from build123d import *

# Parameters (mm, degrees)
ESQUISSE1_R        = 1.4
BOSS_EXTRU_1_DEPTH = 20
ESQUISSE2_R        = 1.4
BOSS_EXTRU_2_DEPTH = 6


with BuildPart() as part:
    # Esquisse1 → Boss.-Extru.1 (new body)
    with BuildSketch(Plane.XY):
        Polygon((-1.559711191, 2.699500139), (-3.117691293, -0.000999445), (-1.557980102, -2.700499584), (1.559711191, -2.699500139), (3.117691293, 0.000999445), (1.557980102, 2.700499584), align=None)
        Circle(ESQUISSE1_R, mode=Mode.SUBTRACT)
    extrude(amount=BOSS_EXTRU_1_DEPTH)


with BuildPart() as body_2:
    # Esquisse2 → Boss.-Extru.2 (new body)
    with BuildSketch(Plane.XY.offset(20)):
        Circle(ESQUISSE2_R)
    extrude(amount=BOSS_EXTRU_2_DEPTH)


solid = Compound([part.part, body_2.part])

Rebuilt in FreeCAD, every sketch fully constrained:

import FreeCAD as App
import Part
import Sketcher
from FreeCAD import Vector
Q = App.Units.Quantity

doc = App.newDocument("Part")
body = doc.addObject("PartDesign::Body", "Body")

sketch1 = doc.addObject("Sketcher::SketchObject", "Sketch")
body.addObject(sketch1)
sketch1.AttachmentSupport = (doc.XY_Plane, [""])
sketch1.MapMode = "FlatFace"
sketch1.addGeometry(Part.LineSegment(Vector(-1.559711, 2.6995, 0), Vector(-3.117691, -0.000999, 0)), False)
sketch1.addGeometry(Part.LineSegment(Vector(-3.117691, -0.000999, 0), Vector(-1.55798, -2.7005, 0)), False)
sketch1.addGeometry(Part.LineSegment(Vector(-1.55798, -2.7005, 0), Vector(1.559711, -2.6995, 0)), False)
sketch1.addGeometry(Part.LineSegment(Vector(1.559711, -2.6995, 0), Vector(3.117691, 0.000999, 0)), False)
sketch1.addGeometry(Part.LineSegment(Vector(3.117691, 0.000999, 0), Vector(1.55798, 2.7005, 0)), False)
sketch1.addGeometry(Part.LineSegment(Vector(1.55798, 2.7005, 0), Vector(-1.559711, 2.6995, 0)), False)
sketch1.addGeometry(Part.Circle(Vector(0, 0, 0), Vector(0, 0, 1), 1.4), False)
sketch1.addConstraint(Sketcher.Constraint("Coincident", 0, 2, 1, 1))
sketch1.addConstraint(Sketcher.Constraint("Coincident", 1, 2, 2, 1))
sketch1.addConstraint(Sketcher.Constraint("Coincident", 2, 2, 3, 1))
sketch1.addConstraint(Sketcher.Constraint("Coincident", 3, 2, 4, 1))
sketch1.addConstraint(Sketcher.Constraint("Coincident", 4, 2, 5, 1))
sketch1.addConstraint(Sketcher.Constraint("Coincident", 5, 2, 0, 1))
sketch1.addConstraint(Sketcher.Constraint("Coincident", 6, 3, -1, 1))
sketch1.addConstraint(Sketcher.Constraint("Symmetric", 0, 2, 3, 2, -1, 1))
sketch1.addConstraint(Sketcher.Constraint("Symmetric", 1, 2, 4, 2, -1, 1))
sketch1.addConstraint(Sketcher.Constraint("Symmetric", 2, 2, 5, 2, -1, 1))
sketch1.addConstraint(Sketcher.Constraint("Equal", 0, 1))
sketch1.addConstraint(Sketcher.Constraint("Equal", 1, 2))
sketch1.addConstraint(Sketcher.Constraint("Diameter", 6, Q("2.8 mm")))
sketch1.addConstraint(Sketcher.Constraint("DistanceY", 2, 2, 4, 2, Q("5.4 mm")))
sketch1.addConstraint(Sketcher.Constraint("DistanceY", 0, 2, -1, 1, Q("0.000999 mm")))
sketch1.addConstraint(Sketcher.Constraint("DistanceY", 1, 2, 2, 2, Q("0.000999 mm")))
sketch1.addConstraint(Sketcher.Constraint("Distance", 0, Q("3.117691 mm")))
pad1 = doc.addObject("PartDesign::Pad", "Pad")
body.addObject(pad1)
pad1.Profile = sketch1
pad1.Length = 20
body2 = doc.addObject("PartDesign::Body", "Body001")

sketch2 = doc.addObject("Sketcher::SketchObject", "Sketch001")
body2.addObject(sketch2)
sketch2.AttachmentSupport = (doc.getObject("XY_Plane001"), [""])
sketch2.MapMode = "FlatFace"
sketch2.AttachmentOffset = App.Placement(Vector(0, 0, 20), App.Rotation())
sketch2.addGeometry(Part.Circle(Vector(0, 0, 0), Vector(0, 0, 1), 1.4), False)
sketch2.addConstraint(Sketcher.Constraint("Coincident", 0, 3, -1, 1))
sketch2.addConstraint(Sketcher.Constraint("Diameter", 0, Q("2.8 mm")))
pad2 = doc.addObject("PartDesign::Pad", "Pad001")
body2.addObject(pad2)
pad2.Profile = sketch2
pad2.Length = 6

doc.recompute()
